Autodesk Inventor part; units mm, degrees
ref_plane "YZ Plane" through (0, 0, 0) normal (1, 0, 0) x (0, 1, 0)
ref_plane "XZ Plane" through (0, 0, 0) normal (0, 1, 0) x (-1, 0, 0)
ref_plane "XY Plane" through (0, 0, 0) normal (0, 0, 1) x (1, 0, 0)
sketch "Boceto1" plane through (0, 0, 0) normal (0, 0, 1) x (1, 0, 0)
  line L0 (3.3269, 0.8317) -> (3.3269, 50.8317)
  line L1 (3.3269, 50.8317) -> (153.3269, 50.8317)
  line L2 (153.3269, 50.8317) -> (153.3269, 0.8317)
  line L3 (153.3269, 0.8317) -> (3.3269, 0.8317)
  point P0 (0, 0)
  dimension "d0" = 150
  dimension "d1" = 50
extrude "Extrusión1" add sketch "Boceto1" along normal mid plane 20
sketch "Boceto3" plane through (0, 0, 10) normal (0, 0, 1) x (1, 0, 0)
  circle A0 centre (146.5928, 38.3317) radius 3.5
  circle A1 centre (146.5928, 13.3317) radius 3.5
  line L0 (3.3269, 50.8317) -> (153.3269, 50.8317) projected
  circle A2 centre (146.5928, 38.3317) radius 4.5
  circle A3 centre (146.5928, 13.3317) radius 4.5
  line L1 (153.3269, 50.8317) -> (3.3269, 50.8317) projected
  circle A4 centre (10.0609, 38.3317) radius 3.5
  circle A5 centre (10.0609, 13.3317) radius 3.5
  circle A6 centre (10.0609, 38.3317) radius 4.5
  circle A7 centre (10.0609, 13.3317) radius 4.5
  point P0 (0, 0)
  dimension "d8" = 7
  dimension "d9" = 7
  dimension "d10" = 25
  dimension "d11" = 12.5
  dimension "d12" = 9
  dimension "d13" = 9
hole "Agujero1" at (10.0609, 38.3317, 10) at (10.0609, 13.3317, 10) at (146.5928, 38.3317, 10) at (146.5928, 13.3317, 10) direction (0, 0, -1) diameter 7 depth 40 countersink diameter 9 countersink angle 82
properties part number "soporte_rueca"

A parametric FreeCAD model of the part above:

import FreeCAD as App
import Part
import Sketcher

V = App.Vector


def add_polygon(sketch, points):
    """Adds a closed chain of lines whose ends are joined by coincident constraints."""
    first, n = sketch.GeometryCount, len(points)
    for a, b in zip(points, points[1:] + points[:1]):
        sketch.addGeometry(Part.LineSegment(App.Vector(*a, 0), App.Vector(*b, 0)), False)
    for i in range(n):
        sketch.addConstraint(Sketcher.Constraint("Coincident", first + i, 2, first + (i + 1) % n, 1))

doc = App.newDocument("Part")
params = doc.addObject("Spreadsheet::Sheet", "Params")
for row, (alias, value) in enumerate([
    ("sketch1_width", "150 mm"),
    ("sketch1_height", "50 mm"),
    ("pad1_length", "20 mm"),
    ("sketch2_diameter", "7 mm"),
    ("hole_diameter", "7 mm"),
    ("hole_depth", "40 mm"),
    ("hole_csink_diameter", "9 mm"),
], start=1):
    params.set(f"A{row}", alias)
    params.set(f"B{row}", "=" + value)
    params.setAlias(f"B{row}", alias)

body = doc.addObject("PartDesign::Body", "Body")

sketch1 = body.newObject("Sketcher::SketchObject", "Sketch")
sketch1.AttachmentSupport = (doc.getObject("XY_Plane"), [""])
sketch1.MapMode = "FlatFace"
add_polygon(sketch1, [(3, 51), (3, 1), (153, 1), (153, 51)])
sketch1.addConstraint(Sketcher.Constraint("Vertical", 0))
sketch1.addConstraint(Sketcher.Constraint("Horizontal", 1))
sketch1.addConstraint(Sketcher.Constraint("Vertical", 2))
sketch1.addConstraint(Sketcher.Constraint("Horizontal", 3))
sketch1.addConstraint(Sketcher.Constraint("DistanceX", 1, 1, 1, 2, 150.0))
sketch1.addConstraint(Sketcher.Constraint("DistanceY", 0, 2, 0, 1, 50.0))
sketch1.addConstraint(Sketcher.Constraint("DistanceX", -1, 1, 0, 2, 3.327))
sketch1.addConstraint(Sketcher.Constraint("DistanceY", -1, 1, 0, 2, 0.8317))
sketch1.setExpression("Constraints[8]", "Params.sketch1_width")
sketch1.setExpression("Constraints[9]", "Params.sketch1_height")
pad1 = body.newObject("PartDesign::Pad", "Pad")
pad1.Profile = sketch1
pad1.setExpression("Length", "Params.pad1_length")
pad1.Midplane = True

sketch2 = body.newObject("Sketcher::SketchObject", "Sketch001")
sketch2.AttachmentSupport = (doc.getObject("XY_Plane"), [""])
sketch2.MapMode = "FlatFace"
sketch2.AttachmentOffset = App.Placement(V(0, 0, 10), App.Rotation())
sketch2.addGeometry(Part.Circle(V(10.1, 38.3, 0), V(0, 0, 1), 3.5), False)
sketch2.addGeometry(Part.Circle(V(10.1, 13.3, 0), V(0, 0, 1), 3.5), False)
sketch2.addGeometry(Part.Circle(V(146.6, 38.3, 0), V(0, 0, 1), 3.5), False)
sketch2.addGeometry(Part.Circle(V(146.6, 13.3, 0), V(0, 0, 1), 3.5), False)
sketch2.addConstraint(Sketcher.Constraint("Equal", 0, 1))
sketch2.addConstraint(Sketcher.Constraint("Equal", 1, 2))
sketch2.addConstraint(Sketcher.Constraint("Equal", 2, 3))
sketch2.addConstraint(Sketcher.Constraint("Horizontal", 0, 3, 2, 3))
sketch2.addConstraint(Sketcher.Constraint("Horizontal", 1, 3, 3, 3))
sketch2.addConstraint(Sketcher.Constraint("Vertical", 0, 3, 1, 3))
sketch2.addConstraint(Sketcher.Constraint("Vertical", 2, 3, 3, 3))
sketch2.addConstraint(Sketcher.Constraint("Diameter", 0, 7.0))
sketch2.addConstraint(Sketcher.Constraint("DistanceY", 1, 3, 0, 3, 25.0))
sketch2.addConstraint(Sketcher.Constraint("DistanceX", -1, 1, 0, 3, 10.061))
sketch2.addConstraint(Sketcher.Constraint("DistanceX", 0, 3, 2, 3, 136.532))
sketch2.addConstraint(Sketcher.Constraint("DistanceY", -1, 1, 0, 3, 38.3317))
sketch2.setExpression("Constraints[7]", "Params.sketch2_diameter")
doc.recompute()
hole = body.newObject("PartDesign::Hole", "Hole")
hole.Profile = sketch2
hole.ThreadType = "None"
hole.setExpression("Diameter", "Params.hole_diameter")
hole.DepthType = "Dimension"
hole.setExpression("Depth", "Params.hole_depth")
hole.DrillPoint = "Flat"
hole.HoleCutType = "Countersink"
hole.setExpression("HoleCutDiameter", "Params.hole_csink_diameter")
hole.HoleCutCountersinkAngle = 82

doc.recompute()
